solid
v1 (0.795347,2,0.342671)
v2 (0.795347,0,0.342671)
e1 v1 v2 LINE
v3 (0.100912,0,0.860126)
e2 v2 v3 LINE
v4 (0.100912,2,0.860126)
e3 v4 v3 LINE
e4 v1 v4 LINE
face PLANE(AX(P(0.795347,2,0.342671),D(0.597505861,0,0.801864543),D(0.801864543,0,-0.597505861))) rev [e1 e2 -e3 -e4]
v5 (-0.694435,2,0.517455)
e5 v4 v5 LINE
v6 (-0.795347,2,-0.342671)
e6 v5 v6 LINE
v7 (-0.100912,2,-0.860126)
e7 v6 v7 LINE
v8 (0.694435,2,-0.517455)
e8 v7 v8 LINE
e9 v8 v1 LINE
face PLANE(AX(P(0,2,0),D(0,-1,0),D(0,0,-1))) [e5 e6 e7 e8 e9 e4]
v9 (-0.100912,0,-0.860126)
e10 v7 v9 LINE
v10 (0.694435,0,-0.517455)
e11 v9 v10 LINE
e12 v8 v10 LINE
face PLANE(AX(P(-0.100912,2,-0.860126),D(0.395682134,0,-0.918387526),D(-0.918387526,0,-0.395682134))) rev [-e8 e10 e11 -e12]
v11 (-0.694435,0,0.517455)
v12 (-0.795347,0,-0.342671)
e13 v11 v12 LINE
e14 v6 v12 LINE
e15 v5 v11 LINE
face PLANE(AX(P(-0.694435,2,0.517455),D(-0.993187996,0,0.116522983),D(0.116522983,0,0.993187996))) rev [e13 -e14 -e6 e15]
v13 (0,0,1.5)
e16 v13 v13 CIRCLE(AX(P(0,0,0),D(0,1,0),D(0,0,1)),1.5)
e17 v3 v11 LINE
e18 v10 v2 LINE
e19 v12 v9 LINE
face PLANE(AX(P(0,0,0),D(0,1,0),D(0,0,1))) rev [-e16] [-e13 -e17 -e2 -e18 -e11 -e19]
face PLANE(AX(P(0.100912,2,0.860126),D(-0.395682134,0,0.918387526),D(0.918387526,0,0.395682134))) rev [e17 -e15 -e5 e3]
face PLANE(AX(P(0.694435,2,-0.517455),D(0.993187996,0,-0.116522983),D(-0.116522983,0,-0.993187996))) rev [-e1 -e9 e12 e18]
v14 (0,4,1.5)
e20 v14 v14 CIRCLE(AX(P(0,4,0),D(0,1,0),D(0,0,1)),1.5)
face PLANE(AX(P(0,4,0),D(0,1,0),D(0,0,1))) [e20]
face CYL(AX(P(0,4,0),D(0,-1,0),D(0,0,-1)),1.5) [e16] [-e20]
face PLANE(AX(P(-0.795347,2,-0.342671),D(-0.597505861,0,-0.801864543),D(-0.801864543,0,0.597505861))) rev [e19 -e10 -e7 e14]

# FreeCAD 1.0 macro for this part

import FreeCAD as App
import Part
import Sketcher
from FreeCAD import Vector


def add_polygon(sketch, points):
    """Adds a closed chain of lines whose ends are joined by coincident constraints."""
    first, n = sketch.GeometryCount, len(points)
    for a, b in zip(points, points[1:] + points[:1]):
        sketch.addGeometry(Part.LineSegment(App.Vector(*a, 0), App.Vector(*b, 0)), False)
    for i in range(n):
        sketch.addConstraint(Sketcher.Constraint("Coincident", first + i, 2, first + (i + 1) % n, 1))

doc = App.newDocument("Part")
body = doc.addObject("PartDesign::Body", "Body")

# Sketch on XZ plane
sketch1 = body.newObject("Sketcher::SketchObject", "Sketch")
sketch1.AttachmentSupport = (doc.getObject("XZ_Plane"), [""])
sketch1.MapMode = "FlatFace"
sketch1.addGeometry(Part.Circle(Vector(0, 0, 0), Vector(0, 0, 1), 1.5), False)
sketch1.addConstraint([
    Sketcher.Constraint("Coincident", 0, 3, -1, 1),
    Sketcher.Constraint("Diameter", 0, 3.0),
])
pad1 = body.newObject("PartDesign::Pad", "Pad")
pad1.Profile = sketch1
pad1.Length = 4
pad1.Reversed = True

# Sketch on XZ plane
sketch2 = body.newObject("Sketcher::SketchObject", "Sketch001")
sketch2.AttachmentSupport = (doc.getObject("XZ_Plane"), [""])
sketch2.MapMode = "FlatFace"
add_polygon(sketch2, [(0.694435, -0.517455), (0.795347, 0.342671), (0.100912, 0.860126), (-0.694435, 0.517455), (-0.795347, -0.342671), (-0.100912, -0.860126)])  # lines 0-5
sketch2.addConstraint([
    Sketcher.Constraint("Symmetric", 0, 2, 3, 2, -1, 1),
    Sketcher.Constraint("Symmetric", 1, 2, 4, 2, -1, 1),
    Sketcher.Constraint("Symmetric", 2, 2, 5, 2, -1, 1),
    Sketcher.Constraint("Equal", 0, 1),
    Sketcher.Constraint("Equal", 1, 2),
    Sketcher.Constraint("DistanceY", -1, 1, 0, 2, 0.342671),
    Sketcher.Constraint("DistanceX", -1, 1, 1, 2, 0.100912),
    Sketcher.Constraint("DistanceY", 2, 2, 1, 2, 0.342671),
    Sketcher.Constraint("DistanceX", 2, 2, 0, 2, 1.489782),
])
pocket1 = body.newObject("PartDesign::Pocket", "Pocket")
pocket1.Profile = sketch2
pocket1.Length = 2

doc.recompute()
